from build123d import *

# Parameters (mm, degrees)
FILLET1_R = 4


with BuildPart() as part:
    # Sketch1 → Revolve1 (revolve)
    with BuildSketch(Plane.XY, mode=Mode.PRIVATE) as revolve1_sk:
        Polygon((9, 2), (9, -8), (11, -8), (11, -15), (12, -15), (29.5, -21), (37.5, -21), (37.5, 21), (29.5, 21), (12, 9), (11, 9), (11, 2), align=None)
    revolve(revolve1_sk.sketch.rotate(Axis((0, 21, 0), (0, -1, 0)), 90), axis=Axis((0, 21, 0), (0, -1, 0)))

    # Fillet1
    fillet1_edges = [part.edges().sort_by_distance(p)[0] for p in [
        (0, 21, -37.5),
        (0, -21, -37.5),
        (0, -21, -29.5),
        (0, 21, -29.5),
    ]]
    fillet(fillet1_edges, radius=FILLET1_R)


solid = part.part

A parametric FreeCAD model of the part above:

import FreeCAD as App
import Part
import Sketcher


def edges_at(feature, points):
    """Names of the edges that pass closest to the given points."""
    edges = feature.Shape.Edges
    near = lambda p: min(range(len(edges)), key=lambda i: edges[i].distToShape(Part.Vertex(*p))[0])
    return sorted({f"Edge{near(p) + 1}" for p in points})

doc = App.newDocument("Part")
body = doc.addObject("PartDesign::Body", "Body")

# Sketch on XY plane
sketch1 = doc.addObject("Sketcher::SketchObject", "Sketch")
body.addObject(sketch1)
sketch1.AttachmentSupport = (doc.XY_Plane, [""])
sketch1.MapMode = "FlatFace"
sketch1.addGeometry(Part.LineSegment(App.Vector(9, 2, 0), App.Vector(9, -8, 0)), False)
sketch1.addGeometry(Part.LineSegment(App.Vector(9, -8, 0), App.Vector(11, -8, 0)), False)
sketch1.addGeometry(Part.LineSegment(App.Vector(11, -8, 0), App.Vector(11, -15, 0)), False)
sketch1.addGeometry(Part.LineSegment(App.Vector(11, -15, 0), App.Vector(12, -15, 0)), False)
sketch1.addGeometry(Part.LineSegment(App.Vector(12, -15, 0), App.Vector(29.5, -21, 0)), False)
sketch1.addGeometry(Part.LineSegment(App.Vector(29.5, -21, 0), App.Vector(37.5, -21, 0)), False)
sketch1.addGeometry(Part.LineSegment(App.Vector(37.5, -21, 0), App.Vector(37.5, 21, 0)), False)
sketch1.addGeometry(Part.LineSegment(App.Vector(37.5, 21, 0), App.Vector(29.5, 21, 0)), False)
sketch1.addGeometry(Part.LineSegment(App.Vector(29.5, 21, 0), App.Vector(12, 9, 0)), False)
sketch1.addGeometry(Part.LineSegment(App.Vector(12, 9, 0), App.Vector(11, 9, 0)), False)
sketch1.addGeometry(Part.LineSegment(App.Vector(11, 9, 0), App.Vector(11, 2, 0)), False)
sketch1.addGeometry(Part.LineSegment(App.Vector(11, 2, 0), App.Vector(9, 2, 0)), False)
sketch1.addConstraint(Sketcher.Constraint("Coincident", 0, 2, 1, 1))
sketch1.addConstraint(Sketcher.Constraint("Coincident", 1, 2, 2, 1))
sketch1.addConstraint(Sketcher.Constraint("Coincident", 2, 2, 3, 1))
sketch1.addConstraint(Sketcher.Constraint("Coincident", 3, 2, 4, 1))
sketch1.addConstraint(Sketcher.Constraint("Coincident", 4, 2, 5, 1))
sketch1.addConstraint(Sketcher.Constraint("Coincident", 5, 2, 6, 1))
sketch1.addConstraint(Sketcher.Constraint("Coincident", 6, 2, 7, 1))
sketch1.addConstraint(Sketcher.Constraint("Coincident", 7, 2, 8, 1))
sketch1.addConstraint(Sketcher.Constraint("Coincident", 8, 2, 9, 1))
sketch1.addConstraint(Sketcher.Constraint("Coincident", 9, 2, 10, 1))
sketch1.addConstraint(Sketcher.Constraint("Coincident", 10, 2, 11, 1))
sketch1.addConstraint(Sketcher.Constraint("Coincident", 11, 2, 0, 1))
sketch1.addConstraint(Sketcher.Constraint("Vertical", 0))
sketch1.addConstraint(Sketcher.Constraint("Horizontal", 1))
sketch1.addConstraint(Sketcher.Constraint("Vertical", 2))
sketch1.addConstraint(Sketcher.Constraint("Horizontal", 3))
sketch1.addConstraint(Sketcher.Constraint("Horizontal", 5))
sketch1.addConstraint(Sketcher.Constraint("Vertical", 6))
sketch1.addConstraint(Sketcher.Constraint("Horizontal", 7))
sketch1.addConstraint(Sketcher.Constraint("Horizontal", 9))
sketch1.addConstraint(Sketcher.Constraint("Vertical", 10))
sketch1.addConstraint(Sketcher.Constraint("Horizontal", 11))
sketch1.addConstraint(Sketcher.Constraint("Symmetric", 4, 2, 7, 2, -1))
sketch1.addConstraint(Sketcher.Constraint("Vertical", 3, 2, 8, 2))
sketch1.addConstraint(Sketcher.Constraint("Vertical", 2, 2, 9, 2))
sketch1.addConstraint(Sketcher.Constraint("Equal", 2, 10))
sketch1.addConstraint(Sketcher.Constraint("DistanceX", 1, 1, 1, 2, 2.0))
sketch1.addConstraint(Sketcher.Constraint("DistanceX", 3, 1, 3, 2, 1.0))
sketch1.addConstraint(Sketcher.Constraint("DistanceX", 5, 1, 5, 2, 8.0))
sketch1.addConstraint(Sketcher.Constraint("DistanceY", 0, 2, 0, 1, 10.0))
sketch1.addConstraint(Sketcher.Constraint("DistanceY", 2, 2, 2, 1, 7.0))
sketch1.addConstraint(Sketcher.Constraint("DistanceY", 6, 1, 6, 2, 42.0))
sketch1.addConstraint(Sketcher.Constraint("DistanceX", -1, 1, 0, 2, 9.0))
sketch1.addConstraint(Sketcher.Constraint("DistanceY", 0, 2, -1, 1, 8.0))
sketch1.addConstraint(Sketcher.Constraint("Distance", 4, 18.5))
revolution = doc.addObject("PartDesign::Revolution", "Revolution")
body.addObject(revolution)
revolution.Profile = sketch1
revolution.ReferenceAxis = (sketch1, ["V_Axis"])
revolution.Angle = 360
doc.recompute()

fillet = doc.addObject("PartDesign::Fillet", "Fillet")
body.addObject(fillet)
fillet.Base = (revolution, edges_at(revolution, [
    (0, 21, -37.5),
    (0, -21, -37.5),
    (0, -21, -29.5),
    (0, 21, -29.5),
]))
fillet.Radius = 4

doc.recompute()
